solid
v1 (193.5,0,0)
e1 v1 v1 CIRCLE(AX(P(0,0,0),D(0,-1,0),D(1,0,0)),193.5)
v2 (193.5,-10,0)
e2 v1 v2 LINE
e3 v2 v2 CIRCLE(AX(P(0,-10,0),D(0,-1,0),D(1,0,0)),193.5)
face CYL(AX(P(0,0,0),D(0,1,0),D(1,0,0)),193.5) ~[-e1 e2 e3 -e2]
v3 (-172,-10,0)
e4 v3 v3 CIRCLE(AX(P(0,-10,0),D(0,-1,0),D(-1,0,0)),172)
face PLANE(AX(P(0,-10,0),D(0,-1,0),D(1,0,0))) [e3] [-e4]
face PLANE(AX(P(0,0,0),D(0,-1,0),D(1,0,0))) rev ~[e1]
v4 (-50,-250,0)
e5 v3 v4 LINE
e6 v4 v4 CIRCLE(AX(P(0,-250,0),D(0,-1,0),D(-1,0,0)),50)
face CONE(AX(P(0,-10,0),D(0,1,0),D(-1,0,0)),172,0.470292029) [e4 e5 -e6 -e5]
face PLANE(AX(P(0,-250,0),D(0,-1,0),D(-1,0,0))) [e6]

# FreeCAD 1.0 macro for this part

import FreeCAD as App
import Part
import Sketcher
Q = App.Units.Quantity

doc = App.newDocument("Part")
body = doc.addObject("PartDesign::Body", "Body")

sketch1 = doc.addObject("Sketcher::SketchObject", "Sketch")
body.addObject(sketch1)
sketch1.AttachmentSupport = (doc.XZ_Plane, [""])
sketch1.MapMode = "FlatFace"
sketch1.addGeometry(Part.Circle(App.Vector(0, 0, 0), App.Vector(0, 0, 1), 194), False)
sketch1.addConstraint(Sketcher.Constraint("Coincident", 0, 3, -1, 1))
sketch1.addConstraint(Sketcher.Constraint("Diameter", 0, Q("387 mm")))
pad1 = doc.addObject("PartDesign::Pad", "Pad")
body.addObject(pad1)
pad1.Profile = sketch1
pad1.Length = 10

sketch2 = doc.addObject("Sketcher::SketchObject", "Sketch001")
body.addObject(sketch2)
sketch2.AttachmentSupport = (doc.XY_Plane, [""])
sketch2.MapMode = "FlatFace"
sketch2.addGeometry(Part.LineSegment(App.Vector(0, -10, 0), App.Vector(-172, -10, 0)), False)
sketch2.addGeometry(Part.LineSegment(App.Vector(-172, -10, 0), App.Vector(-50, -250, 0)), False)
sketch2.addGeometry(Part.LineSegment(App.Vector(-50, -250, 0), App.Vector(0, -250, 0)), False)
sketch2.addGeometry(Part.LineSegment(App.Vector(0, -250, 0), App.Vector(0, -10, 0)), False)
sketch2.addConstraint(Sketcher.Constraint("Coincident", 0, 2, 1, 1))
sketch2.addConstraint(Sketcher.Constraint("Coincident", 1, 2, 2, 1))
sketch2.addConstraint(Sketcher.Constraint("Coincident", 2, 2, 3, 1))
sketch2.addConstraint(Sketcher.Constraint("Coincident", 3, 2, 0, 1))
sketch2.addConstraint(Sketcher.Constraint("Horizontal", 0))
sketch2.addConstraint(Sketcher.Constraint("Horizontal", 2))
sketch2.addConstraint(Sketcher.Constraint("Vertical", 3))
sketch2.addConstraint(Sketcher.Constraint("PointOnObject", 2, 2, -2))
sketch2.addConstraint(Sketcher.Constraint("DistanceX", 0, 2, 0, 1, Q("172 mm")))
sketch2.addConstraint(Sketcher.Constraint("DistanceX", 2, 1, 2, 2, Q("50 mm")))
sketch2.addConstraint(Sketcher.Constraint("DistanceY", 3, 1, 3, 2, Q("240 mm")))
sketch2.addConstraint(Sketcher.Constraint("DistanceY", 0, 2, -1, 1, Q("10 mm")))
revolution = doc.addObject("PartDesign::Revolution", "Revolution")
body.addObject(revolution)
revolution.Profile = sketch2
revolution.ReferenceAxis = (sketch2, ["V_Axis"])
revolution.Angle = 360

doc.recompute()
